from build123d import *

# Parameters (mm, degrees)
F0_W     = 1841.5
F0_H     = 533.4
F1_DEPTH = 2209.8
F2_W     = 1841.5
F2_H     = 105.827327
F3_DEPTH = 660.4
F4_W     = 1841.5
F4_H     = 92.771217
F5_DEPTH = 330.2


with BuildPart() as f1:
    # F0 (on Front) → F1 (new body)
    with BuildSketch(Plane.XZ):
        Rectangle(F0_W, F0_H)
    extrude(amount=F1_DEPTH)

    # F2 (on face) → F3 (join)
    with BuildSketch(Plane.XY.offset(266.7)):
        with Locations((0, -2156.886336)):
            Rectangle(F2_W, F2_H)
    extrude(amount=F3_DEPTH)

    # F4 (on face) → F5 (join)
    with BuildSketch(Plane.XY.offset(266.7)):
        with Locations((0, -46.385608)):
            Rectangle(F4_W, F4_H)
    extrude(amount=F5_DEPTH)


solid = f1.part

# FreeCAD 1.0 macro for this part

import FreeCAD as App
import Part
import Sketcher

V = App.Vector
Q = App.Units.Quantity

doc = App.newDocument("Part")
body = doc.addObject("PartDesign::Body", "Body")

# Sketch on XZ plane
sketch1 = doc.addObject("Sketcher::SketchObject", "Sketch")
body.addObject(sketch1)
sketch1.AttachmentSupport = (doc.XZ_Plane, [""])
sketch1.MapMode = "FlatFace"
sketch1.addGeometry(Part.LineSegment(V(-921, 267, 0), V(-921, -267, 0)), False)
sketch1.addGeometry(Part.LineSegment(V(-921, -267, 0), V(921, -267, 0)), False)
sketch1.addGeometry(Part.LineSegment(V(921, -267, 0), V(921, 267, 0)), False)
sketch1.addGeometry(Part.LineSegment(V(921, 267, 0), V(-921, 267, 0)), False)
sketch1.addConstraint(Sketcher.Constraint("Coincident", 0, 2, 1, 1))
sketch1.addConstraint(Sketcher.Constraint("Coincident", 1, 2, 2, 1))
sketch1.addConstraint(Sketcher.Constraint("Coincident", 2, 2, 3, 1))
sketch1.addConstraint(Sketcher.Constraint("Coincident", 3, 2, 0, 1))
sketch1.addConstraint(Sketcher.Constraint("Vertical", 0))
sketch1.addConstraint(Sketcher.Constraint("Horizontal", 1))
sketch1.addConstraint(Sketcher.Constraint("Vertical", 2))
sketch1.addConstraint(Sketcher.Constraint("Horizontal", 3))
sketch1.addConstraint(Sketcher.Constraint("Symmetric", 0, 2, 2, 2, -1, 1))
sketch1.addConstraint(Sketcher.Constraint("DistanceY", 0, 2, 0, 1, Q("21 in")))
sketch1.addConstraint(Sketcher.Constraint("DistanceX", 1, 1, 1, 2, Q("72.5 in")))
pad1 = doc.addObject("PartDesign::Pad", "Pad")
body.addObject(pad1)
pad1.Profile = sketch1
pad1.Length = Q("87 in")

# Sketch on XY plane
sketch2 = doc.addObject("Sketcher::SketchObject", "Sketch001")
body.addObject(sketch2)
sketch2.AttachmentSupport = (doc.XY_Plane, [""])
sketch2.MapMode = "FlatFace"
sketch2.AttachmentOffset = App.Placement(V(0, 0, 10.5 * 25.4), App.Rotation())
sketch2.addGeometry(Part.LineSegment(V(-921, -2104, 0), V(-921, -2210, 0)), False)
sketch2.addGeometry(Part.LineSegment(V(-921, -2210, 0), V(921, -2210, 0)), False)
sketch2.addGeometry(Part.LineSegment(V(921, -2210, 0), V(921, -2104, 0)), False)
sketch2.addGeometry(Part.LineSegment(V(921, -2104, 0), V(-921, -2104, 0)), False)
sketch2.addConstraint(Sketcher.Constraint("Coincident", 0, 2, 1, 1))
sketch2.addConstraint(Sketcher.Constraint("Coincident", 1, 2, 2, 1))
sketch2.addConstraint(Sketcher.Constraint("Coincident", 2, 2, 3, 1))
sketch2.addConstraint(Sketcher.Constraint("Coincident", 3, 2, 0, 1))
sketch2.addConstraint(Sketcher.Constraint("Vertical", 0))
sketch2.addConstraint(Sketcher.Constraint("Horizontal", 1))
sketch2.addConstraint(Sketcher.Constraint("Vertical", 2))
sketch2.addConstraint(Sketcher.Constraint("Horizontal", 3))
sketch2.addConstraint(Sketcher.Constraint("DistanceX", 1, 1, 1, 2, Q("72.5 in")))
sketch2.addConstraint(Sketcher.Constraint("DistanceY", 0, 2, -1, 1, Q("87 in")))
sketch2.addConstraint(Sketcher.Constraint("DistanceX", 0, 2, -1, 1, Q("36.25 in")))
sketch2.addConstraint(Sketcher.Constraint("DistanceY", 0, 2, 0, 1, 105.827327))
pad2 = doc.addObject("PartDesign::Pad", "Pad001")
body.addObject(pad2)
pad2.Profile = sketch2
pad2.Length = Q("26 in")

# Sketch on XY plane
sketch3 = doc.addObject("Sketcher::SketchObject", "Sketch002")
body.addObject(sketch3)
sketch3.AttachmentSupport = (doc.XY_Plane, [""])
sketch3.MapMode = "FlatFace"
sketch3.AttachmentOffset = App.Placement(V(0, 0, 10.5 * 25.4), App.Rotation())
sketch3.addGeometry(Part.LineSegment(V(-921, 0, 0), V(-921, -93, 0)), False)
sketch3.addGeometry(Part.LineSegment(V(-921, -93, 0), V(921, -93, 0)), False)
sketch3.addGeometry(Part.LineSegment(V(921, -93, 0), V(921, 0, 0)), False)
sketch3.addGeometry(Part.LineSegment(V(921, 0, 0), V(-921, 0, 0)), False)
sketch3.addConstraint(Sketcher.Constraint("Coincident", 0, 2, 1, 1))
sketch3.addConstraint(Sketcher.Constraint("Coincident", 1, 2, 2, 1))
sketch3.addConstraint(Sketcher.Constraint("Coincident", 2, 2, 3, 1))
sketch3.addConstraint(Sketcher.Constraint("Coincident", 3, 2, 0, 1))
sketch3.addConstraint(Sketcher.Constraint("Vertical", 0))
sketch3.addConstraint(Sketcher.Constraint("Horizontal", 1))
sketch3.addConstraint(Sketcher.Constraint("Vertical", 2))
sketch3.addConstraint(Sketcher.Constraint("Horizontal", 3))
sketch3.addConstraint(Sketcher.Constraint("Symmetric", 2, 2, 3, 2, -1, 1))
sketch3.addConstraint(Sketcher.Constraint("DistanceX", 1, 1, 1, 2, Q("72.5 in")))
sketch3.addConstraint(Sketcher.Constraint("DistanceY", 0, 2, 0, 1, 92.771217))
pad3 = doc.addObject("PartDesign::Pad", "Pad002")
body.addObject(pad3)
pad3.Profile = sketch3
pad3.Length = Q("13 in")

doc.recompute()
